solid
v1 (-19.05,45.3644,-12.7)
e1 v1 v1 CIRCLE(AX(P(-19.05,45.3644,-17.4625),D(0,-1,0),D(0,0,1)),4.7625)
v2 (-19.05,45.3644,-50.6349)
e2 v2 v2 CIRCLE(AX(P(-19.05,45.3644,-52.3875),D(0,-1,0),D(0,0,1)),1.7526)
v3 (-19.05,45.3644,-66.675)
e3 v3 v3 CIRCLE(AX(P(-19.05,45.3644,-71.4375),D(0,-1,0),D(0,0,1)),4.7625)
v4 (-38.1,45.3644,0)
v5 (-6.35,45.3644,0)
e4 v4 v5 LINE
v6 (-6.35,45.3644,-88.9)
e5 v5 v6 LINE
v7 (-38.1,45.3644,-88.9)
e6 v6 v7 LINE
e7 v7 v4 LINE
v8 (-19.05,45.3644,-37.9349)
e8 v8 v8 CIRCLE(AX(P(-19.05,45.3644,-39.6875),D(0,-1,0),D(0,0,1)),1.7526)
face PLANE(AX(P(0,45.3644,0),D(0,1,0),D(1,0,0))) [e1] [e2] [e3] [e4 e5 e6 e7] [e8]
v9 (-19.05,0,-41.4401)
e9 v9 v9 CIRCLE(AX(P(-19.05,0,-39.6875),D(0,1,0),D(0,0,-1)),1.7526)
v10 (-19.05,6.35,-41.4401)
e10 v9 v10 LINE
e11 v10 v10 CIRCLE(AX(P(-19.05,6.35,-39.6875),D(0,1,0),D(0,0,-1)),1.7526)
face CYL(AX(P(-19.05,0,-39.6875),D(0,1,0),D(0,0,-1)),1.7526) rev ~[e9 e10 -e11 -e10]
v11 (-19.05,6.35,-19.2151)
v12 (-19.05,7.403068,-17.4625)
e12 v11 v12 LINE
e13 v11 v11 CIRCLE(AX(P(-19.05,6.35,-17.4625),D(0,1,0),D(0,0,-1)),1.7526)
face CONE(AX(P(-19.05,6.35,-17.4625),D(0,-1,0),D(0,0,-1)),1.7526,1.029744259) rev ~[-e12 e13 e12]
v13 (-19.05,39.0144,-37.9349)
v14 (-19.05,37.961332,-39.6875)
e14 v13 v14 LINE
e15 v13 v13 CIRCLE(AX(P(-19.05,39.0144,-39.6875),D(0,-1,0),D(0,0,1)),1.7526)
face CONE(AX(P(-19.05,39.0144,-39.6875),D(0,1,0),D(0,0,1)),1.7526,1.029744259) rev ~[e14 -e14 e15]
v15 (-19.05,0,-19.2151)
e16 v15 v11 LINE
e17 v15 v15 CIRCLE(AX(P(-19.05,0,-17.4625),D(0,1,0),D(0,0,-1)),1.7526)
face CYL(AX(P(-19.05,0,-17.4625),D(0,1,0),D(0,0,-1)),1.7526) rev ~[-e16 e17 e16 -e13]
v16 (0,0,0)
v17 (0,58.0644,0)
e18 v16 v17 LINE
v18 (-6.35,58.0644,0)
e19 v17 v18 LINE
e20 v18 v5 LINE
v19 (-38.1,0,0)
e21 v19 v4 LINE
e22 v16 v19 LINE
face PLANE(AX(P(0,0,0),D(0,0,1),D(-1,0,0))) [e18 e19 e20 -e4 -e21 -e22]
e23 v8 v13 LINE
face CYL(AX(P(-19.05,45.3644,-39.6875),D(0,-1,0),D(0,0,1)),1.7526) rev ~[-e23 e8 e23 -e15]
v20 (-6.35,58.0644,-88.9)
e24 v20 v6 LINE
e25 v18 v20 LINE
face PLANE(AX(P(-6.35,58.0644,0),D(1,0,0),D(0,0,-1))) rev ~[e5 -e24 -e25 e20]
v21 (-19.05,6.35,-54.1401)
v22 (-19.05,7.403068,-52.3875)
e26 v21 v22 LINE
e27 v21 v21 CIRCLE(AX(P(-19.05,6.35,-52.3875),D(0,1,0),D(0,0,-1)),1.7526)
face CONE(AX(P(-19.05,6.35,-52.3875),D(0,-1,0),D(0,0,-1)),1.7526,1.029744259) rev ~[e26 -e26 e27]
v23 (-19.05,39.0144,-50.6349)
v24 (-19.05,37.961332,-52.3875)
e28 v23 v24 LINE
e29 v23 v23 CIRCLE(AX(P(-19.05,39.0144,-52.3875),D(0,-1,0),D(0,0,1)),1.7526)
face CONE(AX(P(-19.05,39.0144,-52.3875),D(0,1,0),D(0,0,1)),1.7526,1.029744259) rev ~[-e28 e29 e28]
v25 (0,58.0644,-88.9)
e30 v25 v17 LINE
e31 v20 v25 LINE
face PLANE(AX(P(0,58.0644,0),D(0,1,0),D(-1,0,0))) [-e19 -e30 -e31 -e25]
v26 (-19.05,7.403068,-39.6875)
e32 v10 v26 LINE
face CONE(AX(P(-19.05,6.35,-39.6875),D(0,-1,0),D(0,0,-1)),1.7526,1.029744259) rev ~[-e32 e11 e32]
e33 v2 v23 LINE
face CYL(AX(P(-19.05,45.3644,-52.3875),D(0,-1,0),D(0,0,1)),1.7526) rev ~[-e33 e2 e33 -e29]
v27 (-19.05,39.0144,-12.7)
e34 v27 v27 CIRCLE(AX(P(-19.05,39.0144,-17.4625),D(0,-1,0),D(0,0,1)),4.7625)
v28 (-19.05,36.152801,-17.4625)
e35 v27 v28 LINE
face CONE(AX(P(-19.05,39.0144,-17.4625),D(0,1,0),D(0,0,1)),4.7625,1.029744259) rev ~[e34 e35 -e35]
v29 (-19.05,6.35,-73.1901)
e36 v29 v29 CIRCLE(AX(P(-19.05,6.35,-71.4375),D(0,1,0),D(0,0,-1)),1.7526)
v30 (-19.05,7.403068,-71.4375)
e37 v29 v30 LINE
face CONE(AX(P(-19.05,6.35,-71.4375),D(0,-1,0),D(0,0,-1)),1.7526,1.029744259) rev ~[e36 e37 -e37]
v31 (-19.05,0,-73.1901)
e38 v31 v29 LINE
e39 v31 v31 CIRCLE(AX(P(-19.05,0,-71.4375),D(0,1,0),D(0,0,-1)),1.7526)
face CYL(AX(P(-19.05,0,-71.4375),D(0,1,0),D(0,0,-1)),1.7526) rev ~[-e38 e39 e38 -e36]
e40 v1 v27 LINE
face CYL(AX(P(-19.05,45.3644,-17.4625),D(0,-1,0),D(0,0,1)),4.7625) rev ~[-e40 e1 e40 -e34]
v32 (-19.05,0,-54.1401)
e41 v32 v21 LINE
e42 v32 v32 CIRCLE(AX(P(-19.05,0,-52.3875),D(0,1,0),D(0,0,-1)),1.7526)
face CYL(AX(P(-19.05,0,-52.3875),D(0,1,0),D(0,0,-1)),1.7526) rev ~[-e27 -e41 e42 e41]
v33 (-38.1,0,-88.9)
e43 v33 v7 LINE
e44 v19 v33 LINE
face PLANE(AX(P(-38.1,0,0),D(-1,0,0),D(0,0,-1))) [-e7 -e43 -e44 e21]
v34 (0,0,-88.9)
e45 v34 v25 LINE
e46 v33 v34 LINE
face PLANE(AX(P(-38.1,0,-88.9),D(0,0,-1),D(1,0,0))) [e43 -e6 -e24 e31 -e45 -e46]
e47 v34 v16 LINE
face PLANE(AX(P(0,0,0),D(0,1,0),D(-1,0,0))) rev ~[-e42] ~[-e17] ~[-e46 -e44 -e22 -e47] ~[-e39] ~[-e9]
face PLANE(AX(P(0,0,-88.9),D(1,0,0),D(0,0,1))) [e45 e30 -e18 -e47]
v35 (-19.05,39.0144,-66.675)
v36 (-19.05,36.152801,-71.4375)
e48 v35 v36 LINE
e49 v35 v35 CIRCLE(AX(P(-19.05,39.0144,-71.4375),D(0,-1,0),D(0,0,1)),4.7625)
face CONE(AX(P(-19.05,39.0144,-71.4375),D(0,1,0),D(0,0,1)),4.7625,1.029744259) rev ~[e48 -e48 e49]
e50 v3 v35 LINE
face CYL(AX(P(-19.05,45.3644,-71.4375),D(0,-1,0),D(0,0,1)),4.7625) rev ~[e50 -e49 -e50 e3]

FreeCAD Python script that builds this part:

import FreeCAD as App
import Part
import Sketcher

V = App.Vector
Q = App.Units.Quantity


def add_polygon(sketch, points):
    """Adds a closed chain of lines whose ends are joined by coincident constraints."""
    first, n = sketch.GeometryCount, len(points)
    for a, b in zip(points, points[1:] + points[:1]):
        sketch.addGeometry(Part.LineSegment(App.Vector(*a, 0), App.Vector(*b, 0)), False)
    for i in range(n):
        sketch.addConstraint(Sketcher.Constraint("Coincident", first + i, 2, first + (i + 1) % n, 1))

doc = App.newDocument("Part")
params = doc.addObject("Spreadsheet::Sheet", "Params")
for row, (alias, value) in enumerate([
    ("sketch1_width", "1.5 in"),
    ("sketch1_height", "3.5 in"),
    ("pad1_length", "2.286 in"),
    ("sketch2_height", "3.5 in"),
    ("sketch2_width", "1.25 in"),
    ("pocket1_length", "0.5 in"),
    ("sketch3_diameter", "0.375 in"),
    ("hole_diameter", "0.375 in"),
    ("hole_depth", "0.25 in"),
    ("sketch4_diameter", "0.138 in"),
    ("hole2_diameter", "0.138 in"),
    ("hole2_depth", "0.25 in"),
    ("sketch5_diameter", "0.138 in"),
    ("hole3_diameter", "0.138 in"),
    ("hole3_depth", "0.25 in"),
], start=1):
    params.set(f"A{row}", alias)
    params.set(f"B{row}", "=" + value)
    params.setAlias(f"B{row}", alias)

body = doc.addObject("PartDesign::Body", "Body")

# Sketch on XZ plane
sketch1 = body.newObject("Sketcher::SketchObject", "Sketch")
sketch1.AttachmentSupport = (doc.getObject("XZ_Plane"), [""])
sketch1.MapMode = "FlatFace"
add_polygon(sketch1, [(-38, 0), (0, 0), (0, -89), (-38, -89)])  # lines 0-3
sketch1.addConstraint([
    Sketcher.Constraint("Horizontal", 0),
    Sketcher.Constraint("Vertical", 1),
    Sketcher.Constraint("Horizontal", 2),
    Sketcher.Constraint("Vertical", 3),
    Sketcher.Constraint("Coincident", 0, 2, -1, 1),
    Sketcher.Constraint("DistanceX", 0, 1, 0, 2, Q("1.5 in")),
    Sketcher.Constraint("DistanceY", 1, 2, 1, 1, Q("3.5 in")),
])
sketch1.setExpression("Constraints[9]", "Params.sketch1_width")
sketch1.setExpression("Constraints[10]", "Params.sketch1_height")
pad1 = body.newObject("PartDesign::Pad", "Pad")
pad1.Profile = sketch1
pad1.setExpression("Length", "Params.pad1_length")
pad1.Reversed = True

# Sketch on XZ plane
sketch2 = body.newObject("Sketcher::SketchObject", "Sketch001")
sketch2.AttachmentSupport = (doc.getObject("XZ_Plane"), [""])
sketch2.MapMode = "FlatFace"
sketch2.AttachmentOffset = App.Placement(V(0, 0, -2.286 * 25.4), App.Rotation())
add_polygon(sketch2, [(-38, -89), (-38, 0), (-6, 0), (-6, -89)])  # lines 0-3
sketch2.addConstraint([
    Sketcher.Constraint("Vertical", 0),
    Sketcher.Constraint("Horizontal", 1),
    Sketcher.Constraint("Vertical", 2),
    Sketcher.Constraint("Horizontal", 3),
    Sketcher.Constraint("PointOnObject", 0, 2, -1),
    Sketcher.Constraint("DistanceY", 0, 1, 0, 2, Q("3.5 in")),
    Sketcher.Constraint("DistanceX", 1, 1, 1, 2, Q("1.25 in")),
    Sketcher.Constraint("DistanceX", 0, 2, -1, 1, Q("1.5 in")),
])
sketch2.setExpression("Constraints[9]", "Params.sketch2_height")
sketch2.setExpression("Constraints[10]", "Params.sketch2_width")
pocket1 = body.newObject("PartDesign::Pocket", "Pocket")
pocket1.Profile = sketch2
pocket1.setExpression("Length", "Params.pocket1_length")
pocket1.Reversed = True

# Sketch on XZ plane
sketch3 = body.newObject("Sketcher::SketchObject", "Sketch002")
sketch3.AttachmentSupport = (doc.getObject("XZ_Plane"), [""])
sketch3.MapMode = "FlatFace"
sketch3.AttachmentOffset = App.Placement(V(0, 0, -1.786 * 25.4), App.Rotation())
sketch3.addGeometry([
    Part.Circle(V(-19.1, -71.4, 0), V(0, 0, 1), 4.8),
    Part.Circle(V(-19.1, -17.5, 0), V(0, 0, 1), 4.8),
], False)
sketch3.addConstraint([
    Sketcher.Constraint("Equal", 0, 1),
    Sketcher.Constraint("Vertical", 0, 3, 1, 3),
    Sketcher.Constraint("Diameter", 0, Q("0.375 in")),
    Sketcher.Constraint("DistanceX", 0, 3, -1, 1, Q("0.75 in")),
    Sketcher.Constraint("DistanceY", 0, 3, -1, 1, Q("2.8125 in")),
    Sketcher.Constraint("DistanceY", 1, 3, -1, 1, Q("0.6875 in")),
])
sketch3.setExpression("Constraints[2]", "Params.sketch3_diameter")
doc.recompute()
hole = body.newObject("PartDesign::Hole", "Hole")
hole.Profile = sketch3
hole.ThreadType = "None"
hole.setExpression("Diameter", "Params.hole_diameter")
hole.DepthType = "Dimension"
hole.setExpression("Depth", "Params.hole_depth")
hole.DrillPoint = "Angled"
hole.DrillPointAngle = 118
hole.Reversed = True

# Sketch on XZ plane
sketch4 = body.newObject("Sketcher::SketchObject", "Sketch003")
sketch4.AttachmentSupport = (doc.getObject("XZ_Plane"), [""])
sketch4.MapMode = "FlatFace"
sketch4.AttachmentOffset = App.Placement(V(0, 0, -1.786 * 25.4), App.Rotation())
sketch4.addGeometry([
    Part.Circle(V(-19.1, -52.4, 0), V(0, 0, 1), 1.8),
    Part.Circle(V(-19.1, -39.7, 0), V(0, 0, 1), 1.8),
], False)
sketch4.addConstraint([
    Sketcher.Constraint("Equal", 0, 1),
    Sketcher.Constraint("Vertical", 0, 3, 1, 3),
    Sketcher.Constraint("Diameter", 0, Q("0.138 in")),
    Sketcher.Constraint("DistanceY", 0, 3, 1, 3, Q("0.5 in")),
    Sketcher.Constraint("DistanceX", 0, 3, -1, 1, Q("0.75 in")),
    Sketcher.Constraint("DistanceY", 0, 3, -1, 1, Q("2.0625 in")),
])
sketch4.setExpression("Constraints[2]", "Params.sketch4_diameter")
doc.recompute()
hole2 = body.newObject("PartDesign::Hole", "Hole001")
hole2.Profile = sketch4
hole2.ThreadType = "None"
hole2.setExpression("Diameter", "Params.hole2_diameter")
hole2.DepthType = "Dimension"
hole2.setExpression("Depth", "Params.hole2_depth")
hole2.DrillPoint = "Angled"
hole2.DrillPointAngle = 118
hole2.Reversed = True

# Sketch on XZ plane
sketch5 = body.newObject("Sketcher::SketchObject", "Sketch004")
sketch5.AttachmentSupport = (doc.getObject("XZ_Plane"), [""])
sketch5.MapMode = "FlatFace"
sketch5.addGeometry([
    Part.Circle(V(-19.1, -17.5, 0), V(0, 0, 1), 1.8),
    Part.Circle(V(-19.1, -71.4, 0), V(0, 0, 1), 1.8),
    Part.Circle(V(-19.1, -39.7, 0), V(0, 0, 1), 1.8),
    Part.Circle(V(-19.1, -52.4, 0), V(0, 0, 1), 1.8),
], False)
sketch5.addConstraint([
    Sketcher.Constraint("Equal", 0, 1),
    Sketcher.Constraint("Equal", 1, 2),
    Sketcher.Constraint("Equal", 2, 3),
    Sketcher.Constraint("Vertical", 0, 3, 1, 3),
    Sketcher.Constraint("Vertical", 1, 3, 2, 3),
    Sketcher.Constraint("Vertical", 2, 3, 3, 3),
    Sketcher.Constraint("Diameter", 0, Q("0.138 in")),
    Sketcher.Constraint("DistanceY", 3, 3, 2, 3, Q("0.5 in")),
    Sketcher.Constraint("DistanceX", 0, 3, -1, 1, Q("0.75 in")),
    Sketcher.Constraint("DistanceY", 1, 3, 2, 3, Q("1.25 in")),
    Sketcher.Constraint("DistanceY", 0, 3, -1, 1, Q("0.6875 in")),
    Sketcher.Constraint("DistanceY", 1, 3, -1, 1, Q("2.8125 in")),
])
sketch5.setExpression("Constraints[6]", "Params.sketch5_diameter")
doc.recompute()
hole3 = body.newObject("PartDesign::Hole", "Hole002")
hole3.Profile = sketch5
hole3.ThreadType = "None"
hole3.setExpression("Diameter", "Params.hole3_diameter")
hole3.DepthType = "Dimension"
hole3.setExpression("Depth", "Params.hole3_depth")
hole3.DrillPoint = "Angled"
hole3.DrillPointAngle = 118

doc.recompute()
